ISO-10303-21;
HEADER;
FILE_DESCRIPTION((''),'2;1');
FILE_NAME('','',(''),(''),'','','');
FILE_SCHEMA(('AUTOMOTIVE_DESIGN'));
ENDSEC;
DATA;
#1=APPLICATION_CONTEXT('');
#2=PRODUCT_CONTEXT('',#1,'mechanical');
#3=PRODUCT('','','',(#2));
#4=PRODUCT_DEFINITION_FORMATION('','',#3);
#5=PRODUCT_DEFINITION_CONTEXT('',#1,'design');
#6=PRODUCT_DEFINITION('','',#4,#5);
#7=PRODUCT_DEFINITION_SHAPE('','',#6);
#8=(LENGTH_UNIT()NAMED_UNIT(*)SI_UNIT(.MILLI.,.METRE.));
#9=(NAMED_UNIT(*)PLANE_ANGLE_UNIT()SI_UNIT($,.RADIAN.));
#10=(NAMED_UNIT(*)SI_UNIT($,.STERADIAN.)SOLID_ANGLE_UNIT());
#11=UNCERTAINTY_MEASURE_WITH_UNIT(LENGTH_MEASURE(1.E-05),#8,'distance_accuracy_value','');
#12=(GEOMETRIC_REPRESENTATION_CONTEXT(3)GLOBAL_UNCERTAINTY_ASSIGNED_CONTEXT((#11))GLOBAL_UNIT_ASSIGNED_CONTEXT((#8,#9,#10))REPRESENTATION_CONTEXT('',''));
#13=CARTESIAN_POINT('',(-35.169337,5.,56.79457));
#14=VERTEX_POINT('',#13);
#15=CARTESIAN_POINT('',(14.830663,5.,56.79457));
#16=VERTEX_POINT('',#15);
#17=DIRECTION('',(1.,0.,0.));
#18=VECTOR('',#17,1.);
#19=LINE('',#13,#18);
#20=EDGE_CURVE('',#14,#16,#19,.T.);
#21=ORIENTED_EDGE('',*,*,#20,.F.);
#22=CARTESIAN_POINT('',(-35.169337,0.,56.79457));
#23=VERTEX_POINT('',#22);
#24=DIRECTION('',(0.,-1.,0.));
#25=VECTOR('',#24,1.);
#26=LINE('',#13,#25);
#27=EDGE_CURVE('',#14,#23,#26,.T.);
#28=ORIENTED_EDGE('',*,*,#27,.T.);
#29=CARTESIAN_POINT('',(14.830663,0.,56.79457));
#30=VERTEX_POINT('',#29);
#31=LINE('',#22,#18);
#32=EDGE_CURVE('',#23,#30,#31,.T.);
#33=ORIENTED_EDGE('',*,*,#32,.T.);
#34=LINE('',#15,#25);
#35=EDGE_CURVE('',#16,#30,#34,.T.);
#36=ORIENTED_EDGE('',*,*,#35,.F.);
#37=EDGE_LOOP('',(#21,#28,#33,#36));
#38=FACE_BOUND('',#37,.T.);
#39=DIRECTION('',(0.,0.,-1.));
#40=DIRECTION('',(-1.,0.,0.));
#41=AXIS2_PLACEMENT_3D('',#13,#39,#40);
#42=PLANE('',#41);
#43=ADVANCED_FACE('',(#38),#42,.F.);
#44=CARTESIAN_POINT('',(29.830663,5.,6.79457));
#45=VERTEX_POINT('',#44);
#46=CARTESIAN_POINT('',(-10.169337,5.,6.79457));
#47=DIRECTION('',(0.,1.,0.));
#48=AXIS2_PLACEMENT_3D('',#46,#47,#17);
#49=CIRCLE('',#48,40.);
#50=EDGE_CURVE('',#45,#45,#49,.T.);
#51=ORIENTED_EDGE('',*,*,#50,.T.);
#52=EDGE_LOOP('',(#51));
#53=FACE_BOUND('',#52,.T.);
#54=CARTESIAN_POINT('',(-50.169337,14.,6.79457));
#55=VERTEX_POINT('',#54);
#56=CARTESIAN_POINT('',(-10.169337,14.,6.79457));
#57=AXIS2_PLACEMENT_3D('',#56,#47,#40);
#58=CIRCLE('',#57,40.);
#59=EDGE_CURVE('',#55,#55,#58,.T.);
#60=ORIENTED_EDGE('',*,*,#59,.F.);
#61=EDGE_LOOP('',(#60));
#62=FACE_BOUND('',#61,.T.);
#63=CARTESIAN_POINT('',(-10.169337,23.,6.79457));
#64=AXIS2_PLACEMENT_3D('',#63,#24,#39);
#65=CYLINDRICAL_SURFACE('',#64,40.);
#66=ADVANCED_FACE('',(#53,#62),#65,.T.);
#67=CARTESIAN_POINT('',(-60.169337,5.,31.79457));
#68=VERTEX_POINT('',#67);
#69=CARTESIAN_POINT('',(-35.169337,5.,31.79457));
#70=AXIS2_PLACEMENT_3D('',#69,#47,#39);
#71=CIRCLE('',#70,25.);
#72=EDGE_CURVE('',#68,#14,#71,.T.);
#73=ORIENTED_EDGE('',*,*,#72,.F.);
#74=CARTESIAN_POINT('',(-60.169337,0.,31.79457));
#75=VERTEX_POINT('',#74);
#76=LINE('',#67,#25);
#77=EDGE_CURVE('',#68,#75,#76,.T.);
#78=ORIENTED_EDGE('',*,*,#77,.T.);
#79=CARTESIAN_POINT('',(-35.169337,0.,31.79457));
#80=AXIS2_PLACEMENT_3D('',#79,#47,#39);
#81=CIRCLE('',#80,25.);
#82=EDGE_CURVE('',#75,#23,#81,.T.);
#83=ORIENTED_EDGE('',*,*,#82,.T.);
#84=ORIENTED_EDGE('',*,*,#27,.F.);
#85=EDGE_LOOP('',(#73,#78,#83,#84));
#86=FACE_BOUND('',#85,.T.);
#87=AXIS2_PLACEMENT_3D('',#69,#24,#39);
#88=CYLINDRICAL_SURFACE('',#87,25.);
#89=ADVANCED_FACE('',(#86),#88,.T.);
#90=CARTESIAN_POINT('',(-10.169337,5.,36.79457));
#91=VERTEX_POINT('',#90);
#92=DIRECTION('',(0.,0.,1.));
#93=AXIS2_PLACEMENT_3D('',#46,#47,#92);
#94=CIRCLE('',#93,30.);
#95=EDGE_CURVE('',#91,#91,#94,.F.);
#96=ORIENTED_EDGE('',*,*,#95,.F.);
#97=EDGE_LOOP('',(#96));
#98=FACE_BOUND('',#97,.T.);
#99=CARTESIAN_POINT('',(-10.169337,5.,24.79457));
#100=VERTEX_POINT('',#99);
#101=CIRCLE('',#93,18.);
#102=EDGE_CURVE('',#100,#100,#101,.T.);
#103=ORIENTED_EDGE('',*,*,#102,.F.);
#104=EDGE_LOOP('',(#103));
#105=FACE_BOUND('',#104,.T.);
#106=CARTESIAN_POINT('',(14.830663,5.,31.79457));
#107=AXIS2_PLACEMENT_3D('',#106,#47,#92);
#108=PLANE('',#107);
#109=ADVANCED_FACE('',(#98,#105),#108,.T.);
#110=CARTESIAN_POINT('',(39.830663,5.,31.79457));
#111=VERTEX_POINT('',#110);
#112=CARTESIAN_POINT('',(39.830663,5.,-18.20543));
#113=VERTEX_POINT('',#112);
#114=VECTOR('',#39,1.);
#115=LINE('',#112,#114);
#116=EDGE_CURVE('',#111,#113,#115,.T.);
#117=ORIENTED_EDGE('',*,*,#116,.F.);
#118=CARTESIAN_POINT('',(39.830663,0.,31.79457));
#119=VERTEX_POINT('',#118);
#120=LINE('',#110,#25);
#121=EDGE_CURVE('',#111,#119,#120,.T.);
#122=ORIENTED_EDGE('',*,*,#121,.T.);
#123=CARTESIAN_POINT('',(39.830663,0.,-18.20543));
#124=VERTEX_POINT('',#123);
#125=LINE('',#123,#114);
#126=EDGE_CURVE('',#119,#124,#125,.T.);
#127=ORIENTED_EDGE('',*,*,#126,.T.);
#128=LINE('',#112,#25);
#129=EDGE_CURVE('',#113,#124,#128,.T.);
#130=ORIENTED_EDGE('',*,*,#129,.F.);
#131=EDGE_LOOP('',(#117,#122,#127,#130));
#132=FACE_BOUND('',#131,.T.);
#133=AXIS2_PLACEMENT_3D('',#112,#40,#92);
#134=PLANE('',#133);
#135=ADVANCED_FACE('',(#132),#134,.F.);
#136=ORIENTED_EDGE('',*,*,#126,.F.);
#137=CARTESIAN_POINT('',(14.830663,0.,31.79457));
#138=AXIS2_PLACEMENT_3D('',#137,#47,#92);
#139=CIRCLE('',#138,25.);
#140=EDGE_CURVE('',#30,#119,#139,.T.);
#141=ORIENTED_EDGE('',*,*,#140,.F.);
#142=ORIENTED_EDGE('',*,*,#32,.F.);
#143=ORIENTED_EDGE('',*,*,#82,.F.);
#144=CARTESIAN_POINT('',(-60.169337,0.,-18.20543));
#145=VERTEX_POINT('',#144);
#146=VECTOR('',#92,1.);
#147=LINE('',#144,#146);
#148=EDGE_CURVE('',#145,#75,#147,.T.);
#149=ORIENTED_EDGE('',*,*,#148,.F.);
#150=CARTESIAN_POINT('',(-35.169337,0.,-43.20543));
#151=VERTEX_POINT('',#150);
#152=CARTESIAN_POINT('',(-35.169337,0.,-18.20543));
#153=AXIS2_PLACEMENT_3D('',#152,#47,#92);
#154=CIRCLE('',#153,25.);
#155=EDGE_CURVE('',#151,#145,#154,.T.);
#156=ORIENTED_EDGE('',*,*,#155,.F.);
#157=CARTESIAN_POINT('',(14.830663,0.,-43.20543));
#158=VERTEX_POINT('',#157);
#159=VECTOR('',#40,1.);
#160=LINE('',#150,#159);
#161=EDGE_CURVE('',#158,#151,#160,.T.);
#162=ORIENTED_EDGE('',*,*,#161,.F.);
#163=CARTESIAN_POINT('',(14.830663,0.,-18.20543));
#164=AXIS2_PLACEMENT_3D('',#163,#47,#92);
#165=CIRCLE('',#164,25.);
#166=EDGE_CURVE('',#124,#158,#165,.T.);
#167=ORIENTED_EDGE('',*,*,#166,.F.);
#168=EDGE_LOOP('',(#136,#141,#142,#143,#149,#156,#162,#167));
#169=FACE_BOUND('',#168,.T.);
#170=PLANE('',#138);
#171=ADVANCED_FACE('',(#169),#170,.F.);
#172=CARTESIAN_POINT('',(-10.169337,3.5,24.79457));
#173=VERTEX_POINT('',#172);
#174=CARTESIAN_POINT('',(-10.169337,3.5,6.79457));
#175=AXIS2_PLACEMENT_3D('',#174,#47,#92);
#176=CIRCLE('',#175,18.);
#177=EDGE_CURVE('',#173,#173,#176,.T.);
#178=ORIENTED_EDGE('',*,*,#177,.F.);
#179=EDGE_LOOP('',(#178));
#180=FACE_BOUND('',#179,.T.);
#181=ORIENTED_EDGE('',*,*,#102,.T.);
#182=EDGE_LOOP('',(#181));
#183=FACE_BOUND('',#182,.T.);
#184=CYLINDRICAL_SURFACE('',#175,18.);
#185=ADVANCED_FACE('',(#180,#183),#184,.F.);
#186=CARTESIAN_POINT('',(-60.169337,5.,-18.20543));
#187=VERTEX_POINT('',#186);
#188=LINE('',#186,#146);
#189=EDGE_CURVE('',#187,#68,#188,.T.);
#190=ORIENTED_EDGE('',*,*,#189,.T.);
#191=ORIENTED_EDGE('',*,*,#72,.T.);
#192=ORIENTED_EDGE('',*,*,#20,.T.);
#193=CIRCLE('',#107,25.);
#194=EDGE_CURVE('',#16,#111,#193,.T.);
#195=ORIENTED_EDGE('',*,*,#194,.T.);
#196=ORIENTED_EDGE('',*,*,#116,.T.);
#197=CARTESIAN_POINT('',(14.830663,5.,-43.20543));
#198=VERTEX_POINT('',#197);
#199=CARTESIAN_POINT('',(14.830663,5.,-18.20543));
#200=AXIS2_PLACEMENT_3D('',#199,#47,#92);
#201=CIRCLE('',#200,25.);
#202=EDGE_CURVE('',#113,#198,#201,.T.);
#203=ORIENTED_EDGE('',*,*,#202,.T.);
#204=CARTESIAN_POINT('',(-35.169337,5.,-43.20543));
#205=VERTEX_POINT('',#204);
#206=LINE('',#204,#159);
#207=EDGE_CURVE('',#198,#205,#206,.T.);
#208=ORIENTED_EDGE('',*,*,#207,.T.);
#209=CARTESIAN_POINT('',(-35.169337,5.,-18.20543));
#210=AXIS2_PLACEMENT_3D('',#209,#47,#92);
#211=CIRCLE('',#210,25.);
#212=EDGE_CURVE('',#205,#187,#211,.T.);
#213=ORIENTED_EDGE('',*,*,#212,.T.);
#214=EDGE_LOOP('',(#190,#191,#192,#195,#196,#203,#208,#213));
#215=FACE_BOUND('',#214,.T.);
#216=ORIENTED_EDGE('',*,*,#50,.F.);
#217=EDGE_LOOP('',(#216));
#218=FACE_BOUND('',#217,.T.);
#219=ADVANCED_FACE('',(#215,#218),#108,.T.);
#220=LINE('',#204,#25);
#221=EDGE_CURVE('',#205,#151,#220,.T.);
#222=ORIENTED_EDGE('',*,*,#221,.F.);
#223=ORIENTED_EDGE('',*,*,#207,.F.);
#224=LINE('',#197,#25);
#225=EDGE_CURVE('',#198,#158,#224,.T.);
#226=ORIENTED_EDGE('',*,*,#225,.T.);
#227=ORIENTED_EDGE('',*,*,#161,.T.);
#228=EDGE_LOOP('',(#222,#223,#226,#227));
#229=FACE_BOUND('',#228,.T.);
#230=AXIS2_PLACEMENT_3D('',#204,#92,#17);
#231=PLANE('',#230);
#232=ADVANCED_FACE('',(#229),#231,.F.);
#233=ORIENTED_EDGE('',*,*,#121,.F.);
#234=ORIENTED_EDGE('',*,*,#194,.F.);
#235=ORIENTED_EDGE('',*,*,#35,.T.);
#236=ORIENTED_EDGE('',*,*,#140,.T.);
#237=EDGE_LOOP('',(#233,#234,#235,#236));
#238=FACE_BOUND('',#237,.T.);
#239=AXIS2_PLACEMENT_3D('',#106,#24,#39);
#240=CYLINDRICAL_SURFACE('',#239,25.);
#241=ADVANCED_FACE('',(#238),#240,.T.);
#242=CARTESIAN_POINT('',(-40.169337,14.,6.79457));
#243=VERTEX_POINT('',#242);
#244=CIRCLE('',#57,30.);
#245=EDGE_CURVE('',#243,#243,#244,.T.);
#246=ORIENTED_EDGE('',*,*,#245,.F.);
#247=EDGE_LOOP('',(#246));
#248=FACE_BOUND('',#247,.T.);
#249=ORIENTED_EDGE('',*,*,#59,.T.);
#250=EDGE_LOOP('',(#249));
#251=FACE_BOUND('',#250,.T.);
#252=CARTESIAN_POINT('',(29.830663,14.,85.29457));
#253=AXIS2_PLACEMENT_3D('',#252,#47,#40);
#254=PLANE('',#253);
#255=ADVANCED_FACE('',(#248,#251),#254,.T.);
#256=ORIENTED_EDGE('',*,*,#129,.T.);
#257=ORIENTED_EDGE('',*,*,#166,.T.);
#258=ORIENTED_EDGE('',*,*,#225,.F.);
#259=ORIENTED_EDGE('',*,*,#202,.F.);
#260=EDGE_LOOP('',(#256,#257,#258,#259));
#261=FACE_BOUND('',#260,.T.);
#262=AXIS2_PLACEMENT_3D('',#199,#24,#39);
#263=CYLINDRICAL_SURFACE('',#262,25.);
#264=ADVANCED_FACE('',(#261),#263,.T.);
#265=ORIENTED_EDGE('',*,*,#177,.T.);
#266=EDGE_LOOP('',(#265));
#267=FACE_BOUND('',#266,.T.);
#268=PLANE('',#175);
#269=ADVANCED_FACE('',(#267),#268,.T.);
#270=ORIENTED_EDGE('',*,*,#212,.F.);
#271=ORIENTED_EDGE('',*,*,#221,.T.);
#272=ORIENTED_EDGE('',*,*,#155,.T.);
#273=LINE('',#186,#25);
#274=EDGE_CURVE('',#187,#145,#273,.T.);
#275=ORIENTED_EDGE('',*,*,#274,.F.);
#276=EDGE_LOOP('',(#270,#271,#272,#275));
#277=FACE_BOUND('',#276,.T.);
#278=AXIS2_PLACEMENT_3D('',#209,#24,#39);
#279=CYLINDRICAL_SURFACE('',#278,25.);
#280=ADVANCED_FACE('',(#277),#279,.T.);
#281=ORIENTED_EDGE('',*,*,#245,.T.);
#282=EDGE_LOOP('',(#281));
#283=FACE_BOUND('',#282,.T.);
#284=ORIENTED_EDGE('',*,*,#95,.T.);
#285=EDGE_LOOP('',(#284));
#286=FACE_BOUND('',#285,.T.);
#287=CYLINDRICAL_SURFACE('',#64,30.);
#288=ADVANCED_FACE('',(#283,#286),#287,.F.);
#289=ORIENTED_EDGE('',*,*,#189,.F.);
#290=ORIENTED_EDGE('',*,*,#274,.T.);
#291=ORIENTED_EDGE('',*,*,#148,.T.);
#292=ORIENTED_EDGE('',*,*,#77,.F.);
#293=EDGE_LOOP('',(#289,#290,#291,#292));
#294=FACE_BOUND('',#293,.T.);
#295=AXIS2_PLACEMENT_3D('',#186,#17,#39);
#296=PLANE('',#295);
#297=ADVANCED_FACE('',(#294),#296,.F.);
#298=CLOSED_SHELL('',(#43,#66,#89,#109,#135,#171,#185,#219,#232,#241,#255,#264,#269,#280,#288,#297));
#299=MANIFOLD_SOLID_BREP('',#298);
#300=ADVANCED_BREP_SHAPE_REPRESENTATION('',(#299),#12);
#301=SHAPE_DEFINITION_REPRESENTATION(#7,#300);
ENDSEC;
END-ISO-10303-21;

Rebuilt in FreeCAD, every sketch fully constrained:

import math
import FreeCAD as App
import Part
import Sketcher

V = App.Vector
Q = App.Units.Quantity

doc = App.newDocument("Part")
body = doc.addObject("PartDesign::Body", "Body")

sketch1 = body.newObject("Sketcher::SketchObject", "Sketch")
sketch1.AttachmentSupport = (doc.getObject("XZ_Plane"), [""])
sketch1.MapMode = "FlatFace"
sketch1.addGeometry(Part.LineSegment(V(14.830663, -43.20543, 0), V(-35.169337, -43.20543, 0)), False)
sketch1.addGeometry(Part.ArcOfCircle(Part.Circle(V(-35.169337, -18.20543, 0), V(0, 0, 1), 25), math.radians(-180), math.radians(-90)), False)
sketch1.addGeometry(Part.LineSegment(V(-60.169337, -18.20543, 0), V(-60.169337, 31.79457, 0)), False)
sketch1.addGeometry(Part.ArcOfCircle(Part.Circle(V(-35.169337, 31.79457, 0), V(0, 0, 1), 25), math.radians(90), math.radians(180)), False)
sketch1.addGeometry(Part.LineSegment(V(-35.169337, 56.79457, 0), V(14.830663, 56.79457, 0)), False)
sketch1.addGeometry(Part.ArcOfCircle(Part.Circle(V(14.830663, 31.79457, 0), V(0, 0, 1), 25), math.radians(0), math.radians(90)), False)
sketch1.addGeometry(Part.LineSegment(V(39.830663, 31.79457, 0), V(39.830663, -18.20543, 0)), False)
sketch1.addGeometry(Part.ArcOfCircle(Part.Circle(V(14.830663, -18.20543, 0), V(0, 0, 1), 25), math.radians(-90), math.radians(0)), False)
sketch1.addConstraint(Sketcher.Constraint("Tangent", 0, 2, 1, 2))
sketch1.addConstraint(Sketcher.Constraint("Tangent", 1, 1, 2, 1))
sketch1.addConstraint(Sketcher.Constraint("Tangent", 2, 2, 3, 2))
sketch1.addConstraint(Sketcher.Constraint("Tangent", 3, 1, 4, 1))
sketch1.addConstraint(Sketcher.Constraint("Tangent", 4, 2, 5, 2))
sketch1.addConstraint(Sketcher.Constraint("Tangent", 5, 1, 6, 1))
sketch1.addConstraint(Sketcher.Constraint("Tangent", 6, 2, 7, 2))
sketch1.addConstraint(Sketcher.Constraint("Tangent", 7, 1, 0, 1))
sketch1.addConstraint(Sketcher.Constraint("Horizontal", 0))
sketch1.addConstraint(Sketcher.Constraint("Vertical", 2))
sketch1.addConstraint(Sketcher.Constraint("Horizontal", 4))
sketch1.addConstraint(Sketcher.Constraint("Vertical", 6))
sketch1.addConstraint(Sketcher.Constraint("Equal", 1, 3))
sketch1.addConstraint(Sketcher.Constraint("Equal", 3, 5))
sketch1.addConstraint(Sketcher.Constraint("Equal", 5, 7))
sketch1.addConstraint(Sketcher.Constraint("Equal", 4, 2))
sketch1.addConstraint(Sketcher.Constraint("Radius", 1, Q("25 mm")))
sketch1.addConstraint(Sketcher.Constraint("DistanceX", 0, 2, 0, 1, Q("50 mm")))
sketch1.addConstraint(Sketcher.Constraint("DistanceY", 1, 3, -1, 1, Q("18.20543 mm")))
sketch1.addConstraint(Sketcher.Constraint("DistanceX", 1, 3, -1, 1, Q("35.169337 mm")))
pad1 = body.newObject("PartDesign::Pad", "Pad")
pad1.Profile = sketch1
pad1.Length = 5
pad1.Reversed = True

sketch2 = body.newObject("Sketcher::SketchObject", "Sketch001")
sketch2.AttachmentSupport = (doc.getObject("XZ_Plane"), [""])
sketch2.MapMode = "FlatFace"
sketch2.AttachmentOffset = App.Placement(V(0, 0, -5), App.Rotation())
sketch2.addGeometry(Part.Circle(V(-10.169337, 6.79457, 0), V(0, 0, 1), 40), False)
sketch2.addGeometry(Part.Circle(V(-10.169337, 6.79457, 0), V(0, 0, 1), 30), False)
sketch2.addConstraint(Sketcher.Constraint("Coincident", 1, 3, 0, 3))
sketch2.addConstraint(Sketcher.Constraint("Diameter", 0, Q("80 mm")))
sketch2.addConstraint(Sketcher.Constraint("Diameter", 1, Q("60 mm")))
sketch2.addConstraint(Sketcher.Constraint("DistanceY", -1, 1, 0, 3, Q("6.79457 mm")))
sketch2.addConstraint(Sketcher.Constraint("DistanceX", 0, 3, -1, 1, Q("10.169337 mm")))
pad2 = body.newObject("PartDesign::Pad", "Pad001")
pad2.Profile = sketch2
pad2.Length = 18
pad2.Reversed = True

sketch3 = body.newObject("Sketcher::SketchObject", "Sketch002")
sketch3.AttachmentSupport = (doc.getObject("XZ_Plane"), [""])
sketch3.MapMode = "FlatFace"
sketch3.AttachmentOffset = App.Placement(V(0, 0, -5), App.Rotation())
sketch3.addGeometry(Part.Circle(V(-10.169337, 6.79457, 0), V(0, 0, 1), 18), False)
sketch3.addConstraint(Sketcher.Constraint("Diameter", 0, Q("36 mm")))
sketch3.addConstraint(Sketcher.Constraint("DistanceY", -1, 1, 0, 3, Q("6.79457 mm")))
sketch3.addConstraint(Sketcher.Constraint("DistanceX", 0, 3, -1, 1, Q("10.169337 mm")))
pocket1 = body.newObject("PartDesign::Pocket", "Pocket")
pocket1.Profile = sketch3
pocket1.Length = 1.5
pocket1.Reversed = True

sketch4 = body.newObject("Sketcher::SketchObject", "Sketch003")
sketch4.AttachmentSupport = (doc.getObject("XY_Plane"), [""])
sketch4.MapMode = "FlatFace"
sketch4.AttachmentOffset = App.Placement(V(0, 0, -43.20543), App.Rotation())
sketch4.addGeometry(Part.LineSegment(V(-64.710384, 14, 0), V(-64.710384, 40.871723, 0)), False)
sketch4.addGeometry(Part.LineSegment(V(-64.710384, 40.871723, 0), V(67.520218, 40.871723, 0)), False)
sketch4.addGeometry(Part.LineSegment(V(67.520218, 40.871723, 0), V(67.520218, 14, 0)), False)
sketch4.addGeometry(Part.LineSegment(V(67.520218, 14, 0), V(-64.710384, 14, 0)), False)
sketch4.addConstraint(Sketcher.Constraint("Coincident", 0, 2, 1, 1))
sketch4.addConstraint(Sketcher.Constraint("Coincident", 1, 2, 2, 1))
sketch4.addConstraint(Sketcher.Constraint("Coincident", 2, 2, 3, 1))
sketch4.addConstraint(Sketcher.Constraint("Coincident", 3, 2, 0, 1))
sketch4.addConstraint(Sketcher.Constraint("Vertical", 0))
sketch4.addConstraint(Sketcher.Constraint("Horizontal", 1))
sketch4.addConstraint(Sketcher.Constraint("Vertical", 2))
sketch4.addConstraint(Sketcher.Constraint("Horizontal", 3))
sketch4.addConstraint(Sketcher.Constraint("DistanceY", -1, 1, 2, 2, Q("14 mm")))
sketch4.addConstraint(Sketcher.Constraint("DistanceX", 1, 1, 1, 2, Q("132.230602 mm")))
sketch4.addConstraint(Sketcher.Constraint("DistanceY", 0, 1, 0, 2, Q("26.871723 mm")))
sketch4.addConstraint(Sketcher.Constraint("DistanceX", -1, 1, 1, 2, Q("67.520218 mm")))
pocket2 = body.newObject("PartDesign::Pocket", "Pocket001")
pocket2.Profile = sketch4
pocket2.Length = 128.5
pocket2.Reversed = True

doc.recompute()
